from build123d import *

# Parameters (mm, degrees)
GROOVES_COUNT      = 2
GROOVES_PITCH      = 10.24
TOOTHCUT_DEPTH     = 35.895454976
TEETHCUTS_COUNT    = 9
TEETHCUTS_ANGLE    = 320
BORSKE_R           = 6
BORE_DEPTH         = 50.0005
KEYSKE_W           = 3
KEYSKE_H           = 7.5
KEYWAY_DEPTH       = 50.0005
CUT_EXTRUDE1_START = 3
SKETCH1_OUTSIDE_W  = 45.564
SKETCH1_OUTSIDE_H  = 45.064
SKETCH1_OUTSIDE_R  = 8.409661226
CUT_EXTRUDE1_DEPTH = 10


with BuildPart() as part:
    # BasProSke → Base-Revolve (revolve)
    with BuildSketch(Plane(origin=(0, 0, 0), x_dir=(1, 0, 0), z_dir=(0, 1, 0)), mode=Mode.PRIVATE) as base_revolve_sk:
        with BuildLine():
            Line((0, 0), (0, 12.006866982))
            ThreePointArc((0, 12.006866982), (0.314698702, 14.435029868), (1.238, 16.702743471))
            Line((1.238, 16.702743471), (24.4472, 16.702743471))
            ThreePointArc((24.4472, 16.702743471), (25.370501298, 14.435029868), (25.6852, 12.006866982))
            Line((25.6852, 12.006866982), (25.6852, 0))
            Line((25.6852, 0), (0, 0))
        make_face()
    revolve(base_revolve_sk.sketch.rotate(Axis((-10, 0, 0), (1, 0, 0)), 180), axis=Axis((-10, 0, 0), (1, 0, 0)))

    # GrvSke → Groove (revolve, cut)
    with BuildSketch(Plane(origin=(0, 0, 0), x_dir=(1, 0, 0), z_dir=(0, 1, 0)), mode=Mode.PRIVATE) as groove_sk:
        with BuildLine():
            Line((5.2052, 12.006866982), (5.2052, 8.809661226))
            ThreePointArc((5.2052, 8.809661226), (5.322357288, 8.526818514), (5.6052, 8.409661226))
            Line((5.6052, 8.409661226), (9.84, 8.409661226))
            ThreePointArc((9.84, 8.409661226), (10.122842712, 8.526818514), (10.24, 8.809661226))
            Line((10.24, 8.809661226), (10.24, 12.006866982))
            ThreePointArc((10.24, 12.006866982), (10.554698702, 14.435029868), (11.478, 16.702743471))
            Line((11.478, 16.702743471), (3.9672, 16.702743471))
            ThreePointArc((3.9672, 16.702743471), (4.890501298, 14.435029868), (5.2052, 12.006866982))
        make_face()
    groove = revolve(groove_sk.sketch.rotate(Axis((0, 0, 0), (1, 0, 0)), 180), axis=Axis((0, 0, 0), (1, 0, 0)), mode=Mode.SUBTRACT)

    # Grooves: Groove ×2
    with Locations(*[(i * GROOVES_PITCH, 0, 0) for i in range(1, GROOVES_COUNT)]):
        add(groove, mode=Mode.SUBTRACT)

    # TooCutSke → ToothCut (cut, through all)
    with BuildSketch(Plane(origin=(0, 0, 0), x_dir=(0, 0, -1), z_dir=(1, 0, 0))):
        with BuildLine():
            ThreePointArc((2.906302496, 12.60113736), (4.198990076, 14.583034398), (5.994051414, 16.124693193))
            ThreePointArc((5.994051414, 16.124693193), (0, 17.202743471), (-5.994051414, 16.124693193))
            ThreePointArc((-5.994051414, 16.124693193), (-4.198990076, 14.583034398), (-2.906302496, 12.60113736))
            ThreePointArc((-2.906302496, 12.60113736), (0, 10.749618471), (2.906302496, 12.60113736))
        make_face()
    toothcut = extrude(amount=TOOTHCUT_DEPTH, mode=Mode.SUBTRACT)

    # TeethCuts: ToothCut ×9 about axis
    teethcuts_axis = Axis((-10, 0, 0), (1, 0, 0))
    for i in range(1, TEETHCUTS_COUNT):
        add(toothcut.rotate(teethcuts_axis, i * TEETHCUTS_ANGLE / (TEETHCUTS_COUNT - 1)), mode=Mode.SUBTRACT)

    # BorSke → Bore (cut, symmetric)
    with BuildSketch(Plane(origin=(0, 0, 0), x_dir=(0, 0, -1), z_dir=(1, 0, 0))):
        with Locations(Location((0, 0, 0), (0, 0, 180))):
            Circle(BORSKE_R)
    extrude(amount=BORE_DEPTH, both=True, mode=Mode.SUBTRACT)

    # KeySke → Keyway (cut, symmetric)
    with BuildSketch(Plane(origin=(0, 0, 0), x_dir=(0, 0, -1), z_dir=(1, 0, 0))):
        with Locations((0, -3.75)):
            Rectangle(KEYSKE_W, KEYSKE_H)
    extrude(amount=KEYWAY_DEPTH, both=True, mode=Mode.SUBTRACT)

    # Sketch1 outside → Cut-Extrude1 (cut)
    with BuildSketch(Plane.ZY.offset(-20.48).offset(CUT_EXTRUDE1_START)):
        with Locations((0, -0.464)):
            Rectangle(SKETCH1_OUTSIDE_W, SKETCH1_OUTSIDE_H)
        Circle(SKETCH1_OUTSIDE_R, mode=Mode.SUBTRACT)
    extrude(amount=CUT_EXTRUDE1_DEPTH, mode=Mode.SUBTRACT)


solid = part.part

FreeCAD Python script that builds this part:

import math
import FreeCAD as App
import Part
import Sketcher
Q = App.Units.Quantity

doc = App.newDocument("Part")
params = doc.addObject("Spreadsheet::Sheet", "Params")
for row, (alias, value) in enumerate([
    ("revolution_angle", "360 deg"),
    ("sketch2_radius", "0.4 mm"),
    ("groove_angle", "360 deg"),
    ("linearpattern_pitch", "10.24 mm"),
    ("sketch4_diameter", "12 mm"),
    ("pocket2_length", "100.001 mm"),
    ("sketch5_height", "3 mm"),
    ("sketch5_width", "7.5 mm"),
    ("pocket3_length", "100.001 mm"),
    ("pocket4_length", "10 mm"),
], start=1):
    params.set(f"A{row}", alias)
    params.set(f"B{row}", "=" + value)
    params.setAlias(f"B{row}", alias)

body = doc.addObject("PartDesign::Body", "Body")

sketch1 = body.newObject("Sketcher::SketchObject", "Sketch")
sketch1.AttachmentSupport = (doc.getObject("XZ_Plane"), [""])
sketch1.MapMode = "FlatFace"
sketch1.addGeometry([
    Part.LineSegment(App.Vector(0, -12, 0), App.Vector(0, 0, 0)),
    Part.LineSegment(App.Vector(0, 0, 0), App.Vector(25.7, 0, 0)),
    Part.LineSegment(App.Vector(25.7, 0, 0), App.Vector(25.7, -12, 0)),
    Part.ArcOfCircle(Part.Circle(App.Vector(16.2, -12, 0), App.Vector(0, 0, 1), 9.5), math.radians(-30), math.radians(0)),
    Part.LineSegment(App.Vector(24.4, -16.7, 0), App.Vector(1.2, -16.7, 0)),
    Part.ArcOfCircle(Part.Circle(App.Vector(9.5, -12, 0), App.Vector(0, 0, 1), 9.5), math.radians(180), math.radians(210)),
], False)
sketch1.addConstraint([
    Sketcher.Constraint("Coincident", 0, 2, 1, 1),
    Sketcher.Constraint("Coincident", 1, 2, 2, 1),
    Sketcher.Constraint("Tangent", 2, 2, 3, 2),
    Sketcher.Constraint("Coincident", 3, 1, 4, 1),
    Sketcher.Constraint("Coincident", 4, 2, 5, 2),
    Sketcher.Constraint("Tangent", 5, 1, 0, 1),
    Sketcher.Constraint("Vertical", 0),
    Sketcher.Constraint("Horizontal", 1),
    Sketcher.Constraint("Vertical", 2),
    Sketcher.Constraint("Horizontal", 4),
    Sketcher.Constraint("Coincident", 0, 2, -1, 1),
    Sketcher.Constraint("Equal", 3, 5),
    Sketcher.Constraint("Horizontal", 3, 3, 5, 3),
    Sketcher.Constraint("Radius", 3, Q("9.525 mm")),
    Sketcher.Constraint("DistanceX", 1, 1, 1, 2, Q("25.6852 mm")),
    Sketcher.Constraint("DistanceX", 4, 2, 4, 1, Q("23.2092 mm")),
    Sketcher.Constraint("DistanceY", 0, 1, 0, 2, Q("12.006867 mm")),
])
revolution = body.newObject("PartDesign::Revolution", "Revolution")
revolution.Profile = sketch1
revolution.ReferenceAxis = (sketch1, ["H_Axis"])
revolution.setExpression("Angle", "Params.revolution_angle")

sketch2 = body.newObject("Sketcher::SketchObject", "Sketch001")
sketch2.AttachmentSupport = (doc.getObject("XZ_Plane"), [""])
sketch2.MapMode = "FlatFace"
sketch2.addGeometry([
    Part.LineSegment(App.Vector(5.21, -12.01, 0), App.Vector(5.21, -8.81, 0)),
    Part.ArcOfCircle(Part.Circle(App.Vector(5.61, -8.81, 0), App.Vector(0, 0, 1), 0.4), math.radians(90), math.radians(180)),
    Part.LineSegment(App.Vector(5.61, -8.41, 0), App.Vector(9.84, -8.41, 0)),
    Part.ArcOfCircle(Part.Circle(App.Vector(9.84, -8.81, 0), App.Vector(0, 0, 1), 0.4), math.radians(0), math.radians(90)),
    Part.LineSegment(App.Vector(10.24, -8.81, 0), App.Vector(10.24, -12.01, 0)),
    Part.ArcOfCircle(Part.Circle(App.Vector(19.76, -12.01, 0), App.Vector(0, 0, 1), 9.52), math.radians(180), math.radians(210)),
    Part.LineSegment(App.Vector(11.48, -16.7, 0), App.Vector(3.97, -16.7, 0)),
    Part.ArcOfCircle(Part.Circle(App.Vector(-4.32, -12.01, 0), App.Vector(0, 0, 1), 9.52), math.radians(-30), math.radians(0)),
], False)
sketch2.addConstraint([
    Sketcher.Constraint("Tangent", 0, 2, 1, 2),
    Sketcher.Constraint("Tangent", 1, 1, 2, 1),
    Sketcher.Constraint("Tangent", 2, 2, 3, 2),
    Sketcher.Constraint("Tangent", 3, 1, 4, 1),
    Sketcher.Constraint("Tangent", 4, 2, 5, 1),
    Sketcher.Constraint("Coincident", 5, 2, 6, 1),
    Sketcher.Constraint("Coincident", 6, 2, 7, 1),
    Sketcher.Constraint("Tangent", 7, 2, 0, 1),
    Sketcher.Constraint("Vertical", 0),
    Sketcher.Constraint("Horizontal", 2),
    Sketcher.Constraint("Vertical", 4),
    Sketcher.Constraint("Horizontal", 6),
    Sketcher.Constraint("Equal", 1, 3),
    Sketcher.Constraint("Equal", 5, 7),
    Sketcher.Constraint("Horizontal", 5, 3, 7, 3),
    Sketcher.Constraint("Radius", 1, Q("0.4 mm")),
    Sketcher.Constraint("Radius", 5, Q("9.525 mm")),
    Sketcher.Constraint("DistanceX", -1, 1, 3, 3, Q("9.84 mm")),
    Sketcher.Constraint("DistanceX", 2, 1, 2, 2, Q("4.2348 mm")),
    Sketcher.Constraint("DistanceX", 6, 2, 6, 1, Q("7.5108 mm")),
    Sketcher.Constraint("DistanceY", 0, 1, 0, 2, Q("3.197206 mm")),
    Sketcher.Constraint("DistanceY", 1, 3, -1, 1, Q("8.809661 mm")),
])
sketch2.setExpression("Constraints[15]", "Params.sketch2_radius")
groove = body.newObject("PartDesign::Groove", "Groove")
groove.Profile = sketch2
groove.ReferenceAxis = (sketch2, ["H_Axis"])
groove.setExpression("Angle", "Params.groove_angle")
doc.recompute()

linearpattern = body.newObject("PartDesign::LinearPattern", "LinearPattern")
linearpattern.Originals = [groove]
linearpattern.Direction = (doc.getObject("X_Axis"), [""])
linearpattern.Mode = "offset"
linearpattern.setExpression("Offset", "Params.linearpattern_pitch")
linearpattern.Occurrences = 2
body.Tip = linearpattern

sketch3 = body.newObject("Sketcher::SketchObject", "Sketch002")
sketch3.AttachmentSupport = (doc.getObject("YZ_Plane"), [""])
sketch3.MapMode = "FlatFace"
sketch3.addGeometry([
    Part.ArcOfCircle(Part.Circle(App.Vector(9.1, -10.5, 0), App.Vector(0, 0, 1), 8.4), math.radians(33), math.radians(65)),
    Part.ArcOfCircle(Part.Circle(App.Vector(0, 0, 0), App.Vector(0, 0, 1), 17.2), math.radians(-20), math.radians(20)),
    Part.ArcOfCircle(Part.Circle(App.Vector(9.1, 10.5, 0), App.Vector(0, 0, 1), 8.4), math.radians(-65), math.radians(-33)),
    Part.ArcOfCircle(Part.Circle(App.Vector(14, 0, 0), App.Vector(0, 0, 1), 3.2), math.radians(115), math.radians(245)),
], False)
sketch3.addConstraint([
    Sketcher.Constraint("Coincident", 0, 1, 1, 1),
    Sketcher.Constraint("Coincident", 1, 2, 2, 2),
    Sketcher.Constraint("Tangent", 2, 1, 3, 1),
    Sketcher.Constraint("Tangent", 3, 2, 0, 2),
    Sketcher.Constraint("Coincident", 1, 3, -1, 1),
    Sketcher.Constraint("Equal", 0, 2),
    Sketcher.Constraint("Symmetric", 0, 3, 2, 3, -1),
    Sketcher.Constraint("Radius", 0, Q("8.382 mm")),
    Sketcher.Constraint("Radius", 3, Q("3.20675 mm")),
    Sketcher.Constraint("Radius", 1, Q("17.202743 mm")),
    Sketcher.Constraint("DistanceX", -1, 1, 0, 3, Q("9.058751 mm")),
    Sketcher.Constraint("DistanceX", -1, 1, 3, 3, Q("13.956368 mm")),
])
pocket1 = body.newObject("PartDesign::Pocket", "Pocket")
pocket1.Profile = sketch3
pocket1.Type = "ThroughAll"
pocket1.Reversed = True
doc.recompute()

polarpattern = body.newObject("PartDesign::PolarPattern", "PolarPattern")
polarpattern.Originals = [pocket1]
polarpattern.Axis = (doc.getObject("X_Axis"), [""])
polarpattern.Angle = 360
polarpattern.Occurrences = 9
body.Tip = polarpattern

sketch4 = body.newObject("Sketcher::SketchObject", "Sketch003")
sketch4.AttachmentSupport = (doc.getObject("YZ_Plane"), [""])
sketch4.MapMode = "FlatFace"
sketch4.addGeometry(Part.Circle(App.Vector(0, 0, 0), App.Vector(0, 0, 1), 6), False)
sketch4.addConstraint([
    Sketcher.Constraint("Coincident", 0, 3, -1, 1),
    Sketcher.Constraint("Diameter", 0, Q("12 mm")),
])
sketch4.setExpression("Constraints[1]", "Params.sketch4_diameter")
pocket2 = body.newObject("PartDesign::Pocket", "Pocket001")
pocket2.Profile = sketch4
pocket2.setExpression("Length", "Params.pocket2_length")
pocket2.Midplane = True

sketch5 = body.newObject("Sketcher::SketchObject", "Sketch004")
sketch5.AttachmentSupport = (doc.getObject("YZ_Plane"), [""])
sketch5.MapMode = "FlatFace"
sketch5.addGeometry([
    Part.LineSegment(App.Vector(0, 1.5, 0), App.Vector(-7.5, 1.5, 0)),
    Part.LineSegment(App.Vector(-7.5, 1.5, 0), App.Vector(-7.5, -1.5, 0)),
    Part.LineSegment(App.Vector(-7.5, -1.5, 0), App.Vector(0, -1.5, 0)),
    Part.LineSegment(App.Vector(0, -1.5, 0), App.Vector(0, 1.5, 0)),
], False)
sketch5.addConstraint([
    Sketcher.Constraint("Coincident", 0, 2, 1, 1),
    Sketcher.Constraint("Coincident", 1, 2, 2, 1),
    Sketcher.Constraint("Coincident", 2, 2, 3, 1),
    Sketcher.Constraint("Coincident", 3, 2, 0, 1),
    Sketcher.Constraint("Horizontal", 0),
    Sketcher.Constraint("Vertical", 1),
    Sketcher.Constraint("Horizontal", 2),
    Sketcher.Constraint("Vertical", 3),
    Sketcher.Constraint("Symmetric", 2, 2, 3, 2, -1, 1),
    Sketcher.Constraint("DistanceY", 1, 2, 1, 1, Q("3 mm")),
    Sketcher.Constraint("DistanceX", 0, 2, 0, 1, Q("7.5 mm")),
])
sketch5.setExpression("Constraints[9]", "Params.sketch5_height")
sketch5.setExpression("Constraints[10]", "Params.sketch5_width")
pocket3 = body.newObject("PartDesign::Pocket", "Pocket002")
pocket3.Profile = sketch5
pocket3.setExpression("Length", "Params.pocket3_length")
pocket3.Midplane = True

sketch6 = body.newObject("Sketcher::SketchObject", "Sketch005")
sketch6.AttachmentSupport = (doc.getObject("YZ_Plane"), [""])
sketch6.MapMode = "FlatFace"
sketch6.AttachmentOffset = App.Placement(App.Vector(0, 0, 17.48), App.Rotation())
sketch6.addGeometry([
    Part.LineSegment(App.Vector(22, -23, 0), App.Vector(-23, -23, 0)),
    Part.LineSegment(App.Vector(-23, -23, 0), App.Vector(-23, 23, 0)),
    Part.LineSegment(App.Vector(-23, 23, 0), App.Vector(22, 23, 0)),
    Part.LineSegment(App.Vector(22, 23, 0), App.Vector(22, -23, 0)),
    Part.Circle(App.Vector(0, 0, 0), App.Vector(0, 0, 1), 8),
], False)
sketch6.addConstraint([
    Sketcher.Constraint("Coincident", 0, 2, 1, 1),
    Sketcher.Constraint("Coincident", 1, 2, 2, 1),
    Sketcher.Constraint("Coincident", 2, 2, 3, 1),
    Sketcher.Constraint("Coincident", 3, 2, 0, 1),
    Sketcher.Constraint("Horizontal", 0),
    Sketcher.Constraint("Vertical", 1),
    Sketcher.Constraint("Horizontal", 2),
    Sketcher.Constraint("Vertical", 3),
    Sketcher.Constraint("Coincident", 4, 3, -1, 1),
    Sketcher.Constraint("DistanceX", 0, 2, 0, 1, Q("45.064 mm")),
    Sketcher.Constraint("DistanceY", 1, 1, 1, 2, Q("45.564 mm")),
    Sketcher.Constraint("Diameter", 4, Q("16.819322 mm")),
    Sketcher.Constraint("DistanceX", 0, 2, -1, 1, Q("22.996 mm")),
    Sketcher.Constraint("DistanceY", 0, 2, -1, 1, Q("22.782 mm")),
])
pocket4 = body.newObject("PartDesign::Pocket", "Pocket003")
pocket4.Profile = sketch6
pocket4.setExpression("Length", "Params.pocket4_length")

doc.recompute()
